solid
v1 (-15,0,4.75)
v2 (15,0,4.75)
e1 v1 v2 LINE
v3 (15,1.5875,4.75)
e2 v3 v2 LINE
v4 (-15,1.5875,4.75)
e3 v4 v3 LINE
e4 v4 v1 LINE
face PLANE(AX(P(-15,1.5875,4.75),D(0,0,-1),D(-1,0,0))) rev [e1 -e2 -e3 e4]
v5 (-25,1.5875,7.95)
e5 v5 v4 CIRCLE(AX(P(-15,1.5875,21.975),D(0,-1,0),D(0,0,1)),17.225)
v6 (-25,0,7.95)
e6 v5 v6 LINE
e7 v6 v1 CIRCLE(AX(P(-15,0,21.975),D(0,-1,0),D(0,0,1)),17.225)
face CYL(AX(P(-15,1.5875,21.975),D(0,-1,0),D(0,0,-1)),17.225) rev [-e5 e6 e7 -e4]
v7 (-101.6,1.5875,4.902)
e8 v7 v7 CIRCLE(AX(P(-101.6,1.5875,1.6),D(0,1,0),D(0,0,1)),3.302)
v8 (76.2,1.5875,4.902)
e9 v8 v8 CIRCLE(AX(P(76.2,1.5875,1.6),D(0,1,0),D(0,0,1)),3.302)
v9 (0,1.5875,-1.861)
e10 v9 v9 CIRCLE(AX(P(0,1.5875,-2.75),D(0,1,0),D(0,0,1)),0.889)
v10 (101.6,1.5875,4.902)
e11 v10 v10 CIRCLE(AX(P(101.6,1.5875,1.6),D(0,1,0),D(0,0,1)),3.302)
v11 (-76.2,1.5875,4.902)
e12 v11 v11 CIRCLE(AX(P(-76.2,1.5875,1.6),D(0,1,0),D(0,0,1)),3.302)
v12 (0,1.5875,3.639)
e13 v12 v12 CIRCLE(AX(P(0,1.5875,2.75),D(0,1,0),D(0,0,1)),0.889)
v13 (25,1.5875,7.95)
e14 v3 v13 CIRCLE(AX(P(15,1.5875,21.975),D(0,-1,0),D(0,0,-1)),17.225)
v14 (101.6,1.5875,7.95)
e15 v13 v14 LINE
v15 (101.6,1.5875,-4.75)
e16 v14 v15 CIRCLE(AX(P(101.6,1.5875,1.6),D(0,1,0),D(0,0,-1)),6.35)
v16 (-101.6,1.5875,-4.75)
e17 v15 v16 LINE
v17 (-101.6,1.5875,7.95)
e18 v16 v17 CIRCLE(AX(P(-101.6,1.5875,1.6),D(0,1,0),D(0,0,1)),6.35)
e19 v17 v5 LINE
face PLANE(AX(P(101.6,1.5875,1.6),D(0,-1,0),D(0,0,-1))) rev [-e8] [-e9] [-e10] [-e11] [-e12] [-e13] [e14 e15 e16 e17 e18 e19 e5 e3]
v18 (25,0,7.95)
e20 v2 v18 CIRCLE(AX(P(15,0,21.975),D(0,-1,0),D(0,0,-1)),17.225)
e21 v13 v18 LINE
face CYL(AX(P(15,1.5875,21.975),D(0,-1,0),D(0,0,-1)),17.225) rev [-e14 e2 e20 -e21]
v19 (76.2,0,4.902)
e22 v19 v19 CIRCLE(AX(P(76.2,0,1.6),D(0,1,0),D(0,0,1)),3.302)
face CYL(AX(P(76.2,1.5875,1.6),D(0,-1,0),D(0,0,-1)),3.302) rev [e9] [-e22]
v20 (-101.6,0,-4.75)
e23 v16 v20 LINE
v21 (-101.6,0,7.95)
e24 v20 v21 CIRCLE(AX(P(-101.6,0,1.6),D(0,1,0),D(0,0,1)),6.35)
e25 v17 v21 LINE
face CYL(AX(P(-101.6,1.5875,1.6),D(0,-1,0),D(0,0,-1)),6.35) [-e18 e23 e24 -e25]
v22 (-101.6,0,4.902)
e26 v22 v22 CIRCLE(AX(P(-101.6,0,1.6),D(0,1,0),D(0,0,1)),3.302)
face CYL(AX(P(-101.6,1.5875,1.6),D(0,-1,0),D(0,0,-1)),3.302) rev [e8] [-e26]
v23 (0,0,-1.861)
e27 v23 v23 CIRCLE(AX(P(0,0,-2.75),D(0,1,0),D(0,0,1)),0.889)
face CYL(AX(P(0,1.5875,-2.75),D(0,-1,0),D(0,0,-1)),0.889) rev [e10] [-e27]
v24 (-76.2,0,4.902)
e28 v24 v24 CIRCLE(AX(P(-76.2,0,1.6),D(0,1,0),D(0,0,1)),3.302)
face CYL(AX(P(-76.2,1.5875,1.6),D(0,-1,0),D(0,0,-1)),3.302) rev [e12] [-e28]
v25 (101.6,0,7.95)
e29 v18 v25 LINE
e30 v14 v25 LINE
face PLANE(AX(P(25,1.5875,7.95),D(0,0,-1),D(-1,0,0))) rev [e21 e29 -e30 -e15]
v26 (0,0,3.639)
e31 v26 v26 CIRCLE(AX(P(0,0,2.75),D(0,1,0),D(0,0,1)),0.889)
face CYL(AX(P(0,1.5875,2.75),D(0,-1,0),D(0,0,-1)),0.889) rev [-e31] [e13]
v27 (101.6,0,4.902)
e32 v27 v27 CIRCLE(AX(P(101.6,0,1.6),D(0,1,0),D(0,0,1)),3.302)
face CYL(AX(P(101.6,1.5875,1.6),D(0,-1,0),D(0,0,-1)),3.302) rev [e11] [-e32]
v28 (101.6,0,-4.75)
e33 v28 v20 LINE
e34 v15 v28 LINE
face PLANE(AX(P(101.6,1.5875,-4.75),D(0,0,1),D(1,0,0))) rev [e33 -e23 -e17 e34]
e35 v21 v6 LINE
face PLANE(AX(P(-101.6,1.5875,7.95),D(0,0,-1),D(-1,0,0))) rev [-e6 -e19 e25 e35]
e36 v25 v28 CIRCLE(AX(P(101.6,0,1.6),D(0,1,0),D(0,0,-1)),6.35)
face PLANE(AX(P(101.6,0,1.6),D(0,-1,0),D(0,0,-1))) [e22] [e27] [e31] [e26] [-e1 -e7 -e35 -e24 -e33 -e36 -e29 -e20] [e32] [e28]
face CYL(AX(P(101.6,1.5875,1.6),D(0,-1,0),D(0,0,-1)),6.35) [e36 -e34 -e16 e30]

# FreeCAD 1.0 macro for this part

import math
import FreeCAD as App
import Part
import Sketcher

V = App.Vector
Q = App.Units.Quantity

doc = App.newDocument("Part")
body = doc.addObject("PartDesign::Body", "Body")

# Sketch on XZ plane
sketch1 = body.newObject("Sketcher::SketchObject", "Sketch")
sketch1.AttachmentSupport = (doc.getObject("XZ_Plane"), [""])
sketch1.MapMode = "FlatFace"
sketch1.addGeometry([
    Part.LineSegment(V(101.6, -4.8, 0), V(-101.6, -4.8, 0)),  # 0
    Part.ArcOfCircle(Part.Circle(V(-101.6, 1.6, 0), V(0, 0, 1), 6.3), math.radians(90), math.radians(270)),  # 1
    Part.LineSegment(V(-101.6, 8, 0), V(-25, 8, 0)),  # 2
    Part.ArcOfCircle(Part.Circle(V(-15, 22, 0), V(0, 0, 1), 17.2), math.radians(-125), math.radians(-90)),  # 3
    Part.LineSegment(V(-15, 4.8, 0), V(15, 4.8, 0)),  # 4
    Part.ArcOfCircle(Part.Circle(V(15, 22, 0), V(0, 0, 1), 17.2), math.radians(-90), math.radians(-55)),  # 5
    Part.LineSegment(V(25, 8, 0), V(101.6, 8, 0)),  # 6
    Part.ArcOfCircle(Part.Circle(V(101.6, 1.6, 0), V(0, 0, 1), 6.3), math.radians(-90), math.radians(90)),  # 7
    Part.Circle(V(-101.6, 1.6, 0), V(0, 0, 1), 3.3),  # 8
    Part.Circle(V(-76.2, 1.6, 0), V(0, 0, 1), 3.3),  # 9
    Part.Circle(V(0, 2.8, 0), V(0, 0, 1), 0.9),  # 10
    Part.Circle(V(76.2, 1.6, 0), V(0, 0, 1), 3.3),  # 11
    Part.Circle(V(101.6, 1.6, 0), V(0, 0, 1), 3.3),  # 12
    Part.Circle(V(0, -2.8, 0), V(0, 0, 1), 0.9),  # 13
], False)
sketch1.addConstraint([
    Sketcher.Constraint("Tangent", 0, 2, 1, 2),
    Sketcher.Constraint("Tangent", 1, 1, 2, 1),
    Sketcher.Constraint("Coincident", 2, 2, 3, 1),
    Sketcher.Constraint("Tangent", 3, 2, 4, 1),
    Sketcher.Constraint("Tangent", 4, 2, 5, 1),
    Sketcher.Constraint("Coincident", 5, 2, 6, 1),
    Sketcher.Constraint("Tangent", 6, 2, 7, 2),
    Sketcher.Constraint("Tangent", 7, 1, 0, 1),
    Sketcher.Constraint("Horizontal", 0),
    Sketcher.Constraint("Horizontal", 2),
    Sketcher.Constraint("Horizontal", 4),
    Sketcher.Constraint("Horizontal", 6),
    Sketcher.Constraint("Coincident", 8, 3, 1, 3),
    Sketcher.Constraint("Coincident", 12, 3, 7, 3),
    Sketcher.Constraint("Equal", 3, 5),
    Sketcher.Constraint("Equal", 1, 7),
    Sketcher.Constraint("Equal", 8, 9),
    Sketcher.Constraint("Equal", 9, 11),
    Sketcher.Constraint("Equal", 11, 12),
    Sketcher.Constraint("Equal", 10, 13),
    Sketcher.Constraint("Symmetric", 10, 3, 13, 3, -1, 1),
    Sketcher.Constraint("Symmetric", 9, 3, 11, 3, -2),
    Sketcher.Constraint("PointOnObject", 10, 3, -2),
    Sketcher.Constraint("Horizontal", 8, 3, 9, 3),
    Sketcher.Constraint("Equal", 2, 6),
    Sketcher.Constraint("Diameter", 8, Q("0.26 in")),
    Sketcher.Constraint("Diameter", 10, Q("0.07 in")),
    Sketcher.Constraint("DistanceX", 0, 2, 0, 1, Q("8 in")),
    Sketcher.Constraint("Radius", 1, Q("0.25 in")),
    Sketcher.Constraint("DistanceX", 1, 3, -1, 1, Q("4 in")),
    Sketcher.Constraint("DistanceX", 9, 3, -1, 1, Q("3 in")),
    Sketcher.Constraint("Radius", 3, 17.225),
    Sketcher.Constraint("DistanceX", 2, 1, 2, 2, 76.6),
    Sketcher.Constraint("DistanceX", 4, 1, 4, 2, 30.0),
    Sketcher.Constraint("DistanceY", -1, 1, 1, 3, 1.6),
    Sketcher.Constraint("DistanceY", -1, 1, 10, 3, 2.75),
])
pad1 = body.newObject("PartDesign::Pad", "Pad")
pad1.Profile = sketch1
pad1.Length = Q("0.0625 in")
pad1.Reversed = True

doc.recompute()
